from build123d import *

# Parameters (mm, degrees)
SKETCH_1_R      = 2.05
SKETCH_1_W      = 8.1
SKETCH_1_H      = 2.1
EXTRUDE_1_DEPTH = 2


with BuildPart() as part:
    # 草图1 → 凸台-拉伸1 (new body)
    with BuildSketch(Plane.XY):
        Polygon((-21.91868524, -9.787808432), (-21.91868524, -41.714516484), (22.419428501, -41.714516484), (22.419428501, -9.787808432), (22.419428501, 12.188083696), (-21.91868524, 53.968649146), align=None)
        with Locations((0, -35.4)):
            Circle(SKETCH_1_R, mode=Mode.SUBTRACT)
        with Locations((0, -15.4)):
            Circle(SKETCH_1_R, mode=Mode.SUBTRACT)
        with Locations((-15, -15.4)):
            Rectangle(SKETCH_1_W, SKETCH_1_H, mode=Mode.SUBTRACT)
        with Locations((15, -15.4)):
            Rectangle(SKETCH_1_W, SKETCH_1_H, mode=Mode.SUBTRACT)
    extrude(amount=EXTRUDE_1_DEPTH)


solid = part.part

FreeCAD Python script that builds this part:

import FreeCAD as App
import Part
import Sketcher

V = App.Vector
Q = App.Units.Quantity

doc = App.newDocument("Part")
body = doc.addObject("PartDesign::Body", "Body")

sketch1 = body.newObject("Sketcher::SketchObject", "Sketch")
sketch1.AttachmentSupport = (doc.getObject("XY_Plane"), [""])
sketch1.MapMode = "FlatFace"
sketch1.addGeometry([
    Part.LineSegment(V(-21.9, -41.7, 0), V(22.4, -41.7, 0)),
    Part.LineSegment(V(22.4, -41.7, 0), V(22.4, 12.2, 0)),
    Part.LineSegment(V(22.4, 12.2, 0), V(-21.9, 54, 0)),
    Part.LineSegment(V(-21.9, 54, 0), V(-21.9, -41.7, 0)),
    Part.Circle(V(0, -35.4, 0), V(0, 0, 1), 2),
    Part.LineSegment(V(-10.9, -16.4, 0), V(-19.1, -16.4, 0)),
    Part.LineSegment(V(-19.1, -16.4, 0), V(-19.1, -14.3, 0)),
    Part.LineSegment(V(-19.1, -14.3, 0), V(-10.9, -14.3, 0)),
    Part.LineSegment(V(-10.9, -14.3, 0), V(-10.9, -16.4, 0)),
    Part.Circle(V(0, -15.4, 0), V(0, 0, 1), 2),
    Part.LineSegment(V(19.1, -16.4, 0), V(10.9, -16.4, 0)),
    Part.LineSegment(V(10.9, -16.4, 0), V(10.9, -14.3, 0)),
    Part.LineSegment(V(10.9, -14.3, 0), V(19.1, -14.3, 0)),
    Part.LineSegment(V(19.1, -14.3, 0), V(19.1, -16.4, 0)),
], False)
sketch1.addConstraint([
    Sketcher.Constraint("Coincident", 0, 2, 1, 1),
    Sketcher.Constraint("Coincident", 1, 2, 2, 1),
    Sketcher.Constraint("Coincident", 2, 2, 3, 1),
    Sketcher.Constraint("Coincident", 3, 2, 0, 1),
    Sketcher.Constraint("Coincident", 5, 2, 6, 1),
    Sketcher.Constraint("Coincident", 6, 2, 7, 1),
    Sketcher.Constraint("Coincident", 7, 2, 8, 1),
    Sketcher.Constraint("Coincident", 8, 2, 5, 1),
    Sketcher.Constraint("Coincident", 10, 2, 11, 1),
    Sketcher.Constraint("Coincident", 11, 2, 12, 1),
    Sketcher.Constraint("Coincident", 12, 2, 13, 1),
    Sketcher.Constraint("Coincident", 13, 2, 10, 1),
    Sketcher.Constraint("Horizontal", 0),
    Sketcher.Constraint("Vertical", 1),
    Sketcher.Constraint("Vertical", 3),
    Sketcher.Constraint("Horizontal", 5),
    Sketcher.Constraint("Vertical", 6),
    Sketcher.Constraint("Horizontal", 7),
    Sketcher.Constraint("Vertical", 8),
    Sketcher.Constraint("Horizontal", 10),
    Sketcher.Constraint("Vertical", 11),
    Sketcher.Constraint("Horizontal", 12),
    Sketcher.Constraint("Vertical", 13),
    Sketcher.Constraint("Equal", 4, 9),
    Sketcher.Constraint("Symmetric", 8, 2, 10, 2, -2),
    Sketcher.Constraint("Symmetric", 6, 2, 12, 2, -2),
    Sketcher.Constraint("PointOnObject", 4, 3, -2),
    Sketcher.Constraint("PointOnObject", 9, 3, -2),
    Sketcher.Constraint("Diameter", 4, Q("4.1 mm")),
    Sketcher.Constraint("DistanceX", 5, 2, 5, 1, Q("8.1 mm")),
    Sketcher.Constraint("DistanceY", 6, 1, 6, 2, Q("2.1 mm")),
    Sketcher.Constraint("DistanceY", 4, 3, 9, 3, Q("20 mm")),
    Sketcher.Constraint("DistanceY", 4, 3, -1, 1, Q("35.4 mm")),
    Sketcher.Constraint("DistanceX", 8, 2, 10, 2, Q("21.9 mm")),
    Sketcher.Constraint("DistanceY", 5, 2, -1, 1, Q("16.45 mm")),
    Sketcher.Constraint("DistanceY", 1, 1, 1, 2, Q("53.9026 mm")),
    Sketcher.Constraint("Distance", 2, Q("60.92195 mm")),
    Sketcher.Constraint("DistanceX", 0, 1, 0, 2, Q("44.338114 mm")),
    Sketcher.Constraint("DistanceX", -1, 1, 0, 2, Q("22.419429 mm")),
    Sketcher.Constraint("DistanceY", -1, 1, 2, 2, Q("53.968649 mm")),
])
pad1 = body.newObject("PartDesign::Pad", "Pad")
pad1.Profile = sketch1
pad1.Length = 2

doc.recompute()
